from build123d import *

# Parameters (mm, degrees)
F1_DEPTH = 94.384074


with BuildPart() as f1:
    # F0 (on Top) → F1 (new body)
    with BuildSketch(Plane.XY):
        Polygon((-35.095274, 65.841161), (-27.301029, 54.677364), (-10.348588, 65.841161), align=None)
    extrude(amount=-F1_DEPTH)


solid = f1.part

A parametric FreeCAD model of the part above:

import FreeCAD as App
import Part
import Sketcher
from FreeCAD import Vector
Q = App.Units.Quantity


def add_polygon(sketch, points):
    """Adds a closed chain of lines whose ends are joined by coincident constraints."""
    first, n = sketch.GeometryCount, len(points)
    for a, b in zip(points, points[1:] + points[:1]):
        sketch.addGeometry(Part.LineSegment(App.Vector(*a, 0), App.Vector(*b, 0)), False)
    for i in range(n):
        sketch.addConstraint(Sketcher.Constraint("Coincident", first + i, 2, first + (i + 1) % n, 1))

doc = App.newDocument("Part")
body = doc.addObject("PartDesign::Body", "Body")

# Sketch on XY plane
sketch1 = doc.addObject("Sketcher::SketchObject", "Sketch")
body.addObject(sketch1)
sketch1.AttachmentSupport = (doc.XY_Plane, [""])
sketch1.MapMode = "FlatFace"
add_polygon(sketch1, [(-35, 66), (-27, 55), (-10, 66)])  # lines 0-2
sketch1.addConstraint([
    Sketcher.Constraint("Horizontal", 2),
    Sketcher.Constraint("DistanceX", 2, 2, 2, 1, Q("24.746686 mm")),
    Sketcher.Constraint("DistanceX", 0, 2, -1, 1, Q("27.301029 mm")),
    Sketcher.Constraint("DistanceY", -1, 1, 1, 2, Q("65.841161 mm")),
    Sketcher.Constraint("DistanceX", 0, 2, 1, 2, Q("16.952441 mm")),
    Sketcher.Constraint("Distance", 0, Q("13.615455 mm")),
])
pad1 = doc.addObject("PartDesign::Pad", "Pad")
body.addObject(pad1)
pad1.Profile = sketch1
pad1.Length = 94.384074
pad1.Reversed = True

doc.recompute()
